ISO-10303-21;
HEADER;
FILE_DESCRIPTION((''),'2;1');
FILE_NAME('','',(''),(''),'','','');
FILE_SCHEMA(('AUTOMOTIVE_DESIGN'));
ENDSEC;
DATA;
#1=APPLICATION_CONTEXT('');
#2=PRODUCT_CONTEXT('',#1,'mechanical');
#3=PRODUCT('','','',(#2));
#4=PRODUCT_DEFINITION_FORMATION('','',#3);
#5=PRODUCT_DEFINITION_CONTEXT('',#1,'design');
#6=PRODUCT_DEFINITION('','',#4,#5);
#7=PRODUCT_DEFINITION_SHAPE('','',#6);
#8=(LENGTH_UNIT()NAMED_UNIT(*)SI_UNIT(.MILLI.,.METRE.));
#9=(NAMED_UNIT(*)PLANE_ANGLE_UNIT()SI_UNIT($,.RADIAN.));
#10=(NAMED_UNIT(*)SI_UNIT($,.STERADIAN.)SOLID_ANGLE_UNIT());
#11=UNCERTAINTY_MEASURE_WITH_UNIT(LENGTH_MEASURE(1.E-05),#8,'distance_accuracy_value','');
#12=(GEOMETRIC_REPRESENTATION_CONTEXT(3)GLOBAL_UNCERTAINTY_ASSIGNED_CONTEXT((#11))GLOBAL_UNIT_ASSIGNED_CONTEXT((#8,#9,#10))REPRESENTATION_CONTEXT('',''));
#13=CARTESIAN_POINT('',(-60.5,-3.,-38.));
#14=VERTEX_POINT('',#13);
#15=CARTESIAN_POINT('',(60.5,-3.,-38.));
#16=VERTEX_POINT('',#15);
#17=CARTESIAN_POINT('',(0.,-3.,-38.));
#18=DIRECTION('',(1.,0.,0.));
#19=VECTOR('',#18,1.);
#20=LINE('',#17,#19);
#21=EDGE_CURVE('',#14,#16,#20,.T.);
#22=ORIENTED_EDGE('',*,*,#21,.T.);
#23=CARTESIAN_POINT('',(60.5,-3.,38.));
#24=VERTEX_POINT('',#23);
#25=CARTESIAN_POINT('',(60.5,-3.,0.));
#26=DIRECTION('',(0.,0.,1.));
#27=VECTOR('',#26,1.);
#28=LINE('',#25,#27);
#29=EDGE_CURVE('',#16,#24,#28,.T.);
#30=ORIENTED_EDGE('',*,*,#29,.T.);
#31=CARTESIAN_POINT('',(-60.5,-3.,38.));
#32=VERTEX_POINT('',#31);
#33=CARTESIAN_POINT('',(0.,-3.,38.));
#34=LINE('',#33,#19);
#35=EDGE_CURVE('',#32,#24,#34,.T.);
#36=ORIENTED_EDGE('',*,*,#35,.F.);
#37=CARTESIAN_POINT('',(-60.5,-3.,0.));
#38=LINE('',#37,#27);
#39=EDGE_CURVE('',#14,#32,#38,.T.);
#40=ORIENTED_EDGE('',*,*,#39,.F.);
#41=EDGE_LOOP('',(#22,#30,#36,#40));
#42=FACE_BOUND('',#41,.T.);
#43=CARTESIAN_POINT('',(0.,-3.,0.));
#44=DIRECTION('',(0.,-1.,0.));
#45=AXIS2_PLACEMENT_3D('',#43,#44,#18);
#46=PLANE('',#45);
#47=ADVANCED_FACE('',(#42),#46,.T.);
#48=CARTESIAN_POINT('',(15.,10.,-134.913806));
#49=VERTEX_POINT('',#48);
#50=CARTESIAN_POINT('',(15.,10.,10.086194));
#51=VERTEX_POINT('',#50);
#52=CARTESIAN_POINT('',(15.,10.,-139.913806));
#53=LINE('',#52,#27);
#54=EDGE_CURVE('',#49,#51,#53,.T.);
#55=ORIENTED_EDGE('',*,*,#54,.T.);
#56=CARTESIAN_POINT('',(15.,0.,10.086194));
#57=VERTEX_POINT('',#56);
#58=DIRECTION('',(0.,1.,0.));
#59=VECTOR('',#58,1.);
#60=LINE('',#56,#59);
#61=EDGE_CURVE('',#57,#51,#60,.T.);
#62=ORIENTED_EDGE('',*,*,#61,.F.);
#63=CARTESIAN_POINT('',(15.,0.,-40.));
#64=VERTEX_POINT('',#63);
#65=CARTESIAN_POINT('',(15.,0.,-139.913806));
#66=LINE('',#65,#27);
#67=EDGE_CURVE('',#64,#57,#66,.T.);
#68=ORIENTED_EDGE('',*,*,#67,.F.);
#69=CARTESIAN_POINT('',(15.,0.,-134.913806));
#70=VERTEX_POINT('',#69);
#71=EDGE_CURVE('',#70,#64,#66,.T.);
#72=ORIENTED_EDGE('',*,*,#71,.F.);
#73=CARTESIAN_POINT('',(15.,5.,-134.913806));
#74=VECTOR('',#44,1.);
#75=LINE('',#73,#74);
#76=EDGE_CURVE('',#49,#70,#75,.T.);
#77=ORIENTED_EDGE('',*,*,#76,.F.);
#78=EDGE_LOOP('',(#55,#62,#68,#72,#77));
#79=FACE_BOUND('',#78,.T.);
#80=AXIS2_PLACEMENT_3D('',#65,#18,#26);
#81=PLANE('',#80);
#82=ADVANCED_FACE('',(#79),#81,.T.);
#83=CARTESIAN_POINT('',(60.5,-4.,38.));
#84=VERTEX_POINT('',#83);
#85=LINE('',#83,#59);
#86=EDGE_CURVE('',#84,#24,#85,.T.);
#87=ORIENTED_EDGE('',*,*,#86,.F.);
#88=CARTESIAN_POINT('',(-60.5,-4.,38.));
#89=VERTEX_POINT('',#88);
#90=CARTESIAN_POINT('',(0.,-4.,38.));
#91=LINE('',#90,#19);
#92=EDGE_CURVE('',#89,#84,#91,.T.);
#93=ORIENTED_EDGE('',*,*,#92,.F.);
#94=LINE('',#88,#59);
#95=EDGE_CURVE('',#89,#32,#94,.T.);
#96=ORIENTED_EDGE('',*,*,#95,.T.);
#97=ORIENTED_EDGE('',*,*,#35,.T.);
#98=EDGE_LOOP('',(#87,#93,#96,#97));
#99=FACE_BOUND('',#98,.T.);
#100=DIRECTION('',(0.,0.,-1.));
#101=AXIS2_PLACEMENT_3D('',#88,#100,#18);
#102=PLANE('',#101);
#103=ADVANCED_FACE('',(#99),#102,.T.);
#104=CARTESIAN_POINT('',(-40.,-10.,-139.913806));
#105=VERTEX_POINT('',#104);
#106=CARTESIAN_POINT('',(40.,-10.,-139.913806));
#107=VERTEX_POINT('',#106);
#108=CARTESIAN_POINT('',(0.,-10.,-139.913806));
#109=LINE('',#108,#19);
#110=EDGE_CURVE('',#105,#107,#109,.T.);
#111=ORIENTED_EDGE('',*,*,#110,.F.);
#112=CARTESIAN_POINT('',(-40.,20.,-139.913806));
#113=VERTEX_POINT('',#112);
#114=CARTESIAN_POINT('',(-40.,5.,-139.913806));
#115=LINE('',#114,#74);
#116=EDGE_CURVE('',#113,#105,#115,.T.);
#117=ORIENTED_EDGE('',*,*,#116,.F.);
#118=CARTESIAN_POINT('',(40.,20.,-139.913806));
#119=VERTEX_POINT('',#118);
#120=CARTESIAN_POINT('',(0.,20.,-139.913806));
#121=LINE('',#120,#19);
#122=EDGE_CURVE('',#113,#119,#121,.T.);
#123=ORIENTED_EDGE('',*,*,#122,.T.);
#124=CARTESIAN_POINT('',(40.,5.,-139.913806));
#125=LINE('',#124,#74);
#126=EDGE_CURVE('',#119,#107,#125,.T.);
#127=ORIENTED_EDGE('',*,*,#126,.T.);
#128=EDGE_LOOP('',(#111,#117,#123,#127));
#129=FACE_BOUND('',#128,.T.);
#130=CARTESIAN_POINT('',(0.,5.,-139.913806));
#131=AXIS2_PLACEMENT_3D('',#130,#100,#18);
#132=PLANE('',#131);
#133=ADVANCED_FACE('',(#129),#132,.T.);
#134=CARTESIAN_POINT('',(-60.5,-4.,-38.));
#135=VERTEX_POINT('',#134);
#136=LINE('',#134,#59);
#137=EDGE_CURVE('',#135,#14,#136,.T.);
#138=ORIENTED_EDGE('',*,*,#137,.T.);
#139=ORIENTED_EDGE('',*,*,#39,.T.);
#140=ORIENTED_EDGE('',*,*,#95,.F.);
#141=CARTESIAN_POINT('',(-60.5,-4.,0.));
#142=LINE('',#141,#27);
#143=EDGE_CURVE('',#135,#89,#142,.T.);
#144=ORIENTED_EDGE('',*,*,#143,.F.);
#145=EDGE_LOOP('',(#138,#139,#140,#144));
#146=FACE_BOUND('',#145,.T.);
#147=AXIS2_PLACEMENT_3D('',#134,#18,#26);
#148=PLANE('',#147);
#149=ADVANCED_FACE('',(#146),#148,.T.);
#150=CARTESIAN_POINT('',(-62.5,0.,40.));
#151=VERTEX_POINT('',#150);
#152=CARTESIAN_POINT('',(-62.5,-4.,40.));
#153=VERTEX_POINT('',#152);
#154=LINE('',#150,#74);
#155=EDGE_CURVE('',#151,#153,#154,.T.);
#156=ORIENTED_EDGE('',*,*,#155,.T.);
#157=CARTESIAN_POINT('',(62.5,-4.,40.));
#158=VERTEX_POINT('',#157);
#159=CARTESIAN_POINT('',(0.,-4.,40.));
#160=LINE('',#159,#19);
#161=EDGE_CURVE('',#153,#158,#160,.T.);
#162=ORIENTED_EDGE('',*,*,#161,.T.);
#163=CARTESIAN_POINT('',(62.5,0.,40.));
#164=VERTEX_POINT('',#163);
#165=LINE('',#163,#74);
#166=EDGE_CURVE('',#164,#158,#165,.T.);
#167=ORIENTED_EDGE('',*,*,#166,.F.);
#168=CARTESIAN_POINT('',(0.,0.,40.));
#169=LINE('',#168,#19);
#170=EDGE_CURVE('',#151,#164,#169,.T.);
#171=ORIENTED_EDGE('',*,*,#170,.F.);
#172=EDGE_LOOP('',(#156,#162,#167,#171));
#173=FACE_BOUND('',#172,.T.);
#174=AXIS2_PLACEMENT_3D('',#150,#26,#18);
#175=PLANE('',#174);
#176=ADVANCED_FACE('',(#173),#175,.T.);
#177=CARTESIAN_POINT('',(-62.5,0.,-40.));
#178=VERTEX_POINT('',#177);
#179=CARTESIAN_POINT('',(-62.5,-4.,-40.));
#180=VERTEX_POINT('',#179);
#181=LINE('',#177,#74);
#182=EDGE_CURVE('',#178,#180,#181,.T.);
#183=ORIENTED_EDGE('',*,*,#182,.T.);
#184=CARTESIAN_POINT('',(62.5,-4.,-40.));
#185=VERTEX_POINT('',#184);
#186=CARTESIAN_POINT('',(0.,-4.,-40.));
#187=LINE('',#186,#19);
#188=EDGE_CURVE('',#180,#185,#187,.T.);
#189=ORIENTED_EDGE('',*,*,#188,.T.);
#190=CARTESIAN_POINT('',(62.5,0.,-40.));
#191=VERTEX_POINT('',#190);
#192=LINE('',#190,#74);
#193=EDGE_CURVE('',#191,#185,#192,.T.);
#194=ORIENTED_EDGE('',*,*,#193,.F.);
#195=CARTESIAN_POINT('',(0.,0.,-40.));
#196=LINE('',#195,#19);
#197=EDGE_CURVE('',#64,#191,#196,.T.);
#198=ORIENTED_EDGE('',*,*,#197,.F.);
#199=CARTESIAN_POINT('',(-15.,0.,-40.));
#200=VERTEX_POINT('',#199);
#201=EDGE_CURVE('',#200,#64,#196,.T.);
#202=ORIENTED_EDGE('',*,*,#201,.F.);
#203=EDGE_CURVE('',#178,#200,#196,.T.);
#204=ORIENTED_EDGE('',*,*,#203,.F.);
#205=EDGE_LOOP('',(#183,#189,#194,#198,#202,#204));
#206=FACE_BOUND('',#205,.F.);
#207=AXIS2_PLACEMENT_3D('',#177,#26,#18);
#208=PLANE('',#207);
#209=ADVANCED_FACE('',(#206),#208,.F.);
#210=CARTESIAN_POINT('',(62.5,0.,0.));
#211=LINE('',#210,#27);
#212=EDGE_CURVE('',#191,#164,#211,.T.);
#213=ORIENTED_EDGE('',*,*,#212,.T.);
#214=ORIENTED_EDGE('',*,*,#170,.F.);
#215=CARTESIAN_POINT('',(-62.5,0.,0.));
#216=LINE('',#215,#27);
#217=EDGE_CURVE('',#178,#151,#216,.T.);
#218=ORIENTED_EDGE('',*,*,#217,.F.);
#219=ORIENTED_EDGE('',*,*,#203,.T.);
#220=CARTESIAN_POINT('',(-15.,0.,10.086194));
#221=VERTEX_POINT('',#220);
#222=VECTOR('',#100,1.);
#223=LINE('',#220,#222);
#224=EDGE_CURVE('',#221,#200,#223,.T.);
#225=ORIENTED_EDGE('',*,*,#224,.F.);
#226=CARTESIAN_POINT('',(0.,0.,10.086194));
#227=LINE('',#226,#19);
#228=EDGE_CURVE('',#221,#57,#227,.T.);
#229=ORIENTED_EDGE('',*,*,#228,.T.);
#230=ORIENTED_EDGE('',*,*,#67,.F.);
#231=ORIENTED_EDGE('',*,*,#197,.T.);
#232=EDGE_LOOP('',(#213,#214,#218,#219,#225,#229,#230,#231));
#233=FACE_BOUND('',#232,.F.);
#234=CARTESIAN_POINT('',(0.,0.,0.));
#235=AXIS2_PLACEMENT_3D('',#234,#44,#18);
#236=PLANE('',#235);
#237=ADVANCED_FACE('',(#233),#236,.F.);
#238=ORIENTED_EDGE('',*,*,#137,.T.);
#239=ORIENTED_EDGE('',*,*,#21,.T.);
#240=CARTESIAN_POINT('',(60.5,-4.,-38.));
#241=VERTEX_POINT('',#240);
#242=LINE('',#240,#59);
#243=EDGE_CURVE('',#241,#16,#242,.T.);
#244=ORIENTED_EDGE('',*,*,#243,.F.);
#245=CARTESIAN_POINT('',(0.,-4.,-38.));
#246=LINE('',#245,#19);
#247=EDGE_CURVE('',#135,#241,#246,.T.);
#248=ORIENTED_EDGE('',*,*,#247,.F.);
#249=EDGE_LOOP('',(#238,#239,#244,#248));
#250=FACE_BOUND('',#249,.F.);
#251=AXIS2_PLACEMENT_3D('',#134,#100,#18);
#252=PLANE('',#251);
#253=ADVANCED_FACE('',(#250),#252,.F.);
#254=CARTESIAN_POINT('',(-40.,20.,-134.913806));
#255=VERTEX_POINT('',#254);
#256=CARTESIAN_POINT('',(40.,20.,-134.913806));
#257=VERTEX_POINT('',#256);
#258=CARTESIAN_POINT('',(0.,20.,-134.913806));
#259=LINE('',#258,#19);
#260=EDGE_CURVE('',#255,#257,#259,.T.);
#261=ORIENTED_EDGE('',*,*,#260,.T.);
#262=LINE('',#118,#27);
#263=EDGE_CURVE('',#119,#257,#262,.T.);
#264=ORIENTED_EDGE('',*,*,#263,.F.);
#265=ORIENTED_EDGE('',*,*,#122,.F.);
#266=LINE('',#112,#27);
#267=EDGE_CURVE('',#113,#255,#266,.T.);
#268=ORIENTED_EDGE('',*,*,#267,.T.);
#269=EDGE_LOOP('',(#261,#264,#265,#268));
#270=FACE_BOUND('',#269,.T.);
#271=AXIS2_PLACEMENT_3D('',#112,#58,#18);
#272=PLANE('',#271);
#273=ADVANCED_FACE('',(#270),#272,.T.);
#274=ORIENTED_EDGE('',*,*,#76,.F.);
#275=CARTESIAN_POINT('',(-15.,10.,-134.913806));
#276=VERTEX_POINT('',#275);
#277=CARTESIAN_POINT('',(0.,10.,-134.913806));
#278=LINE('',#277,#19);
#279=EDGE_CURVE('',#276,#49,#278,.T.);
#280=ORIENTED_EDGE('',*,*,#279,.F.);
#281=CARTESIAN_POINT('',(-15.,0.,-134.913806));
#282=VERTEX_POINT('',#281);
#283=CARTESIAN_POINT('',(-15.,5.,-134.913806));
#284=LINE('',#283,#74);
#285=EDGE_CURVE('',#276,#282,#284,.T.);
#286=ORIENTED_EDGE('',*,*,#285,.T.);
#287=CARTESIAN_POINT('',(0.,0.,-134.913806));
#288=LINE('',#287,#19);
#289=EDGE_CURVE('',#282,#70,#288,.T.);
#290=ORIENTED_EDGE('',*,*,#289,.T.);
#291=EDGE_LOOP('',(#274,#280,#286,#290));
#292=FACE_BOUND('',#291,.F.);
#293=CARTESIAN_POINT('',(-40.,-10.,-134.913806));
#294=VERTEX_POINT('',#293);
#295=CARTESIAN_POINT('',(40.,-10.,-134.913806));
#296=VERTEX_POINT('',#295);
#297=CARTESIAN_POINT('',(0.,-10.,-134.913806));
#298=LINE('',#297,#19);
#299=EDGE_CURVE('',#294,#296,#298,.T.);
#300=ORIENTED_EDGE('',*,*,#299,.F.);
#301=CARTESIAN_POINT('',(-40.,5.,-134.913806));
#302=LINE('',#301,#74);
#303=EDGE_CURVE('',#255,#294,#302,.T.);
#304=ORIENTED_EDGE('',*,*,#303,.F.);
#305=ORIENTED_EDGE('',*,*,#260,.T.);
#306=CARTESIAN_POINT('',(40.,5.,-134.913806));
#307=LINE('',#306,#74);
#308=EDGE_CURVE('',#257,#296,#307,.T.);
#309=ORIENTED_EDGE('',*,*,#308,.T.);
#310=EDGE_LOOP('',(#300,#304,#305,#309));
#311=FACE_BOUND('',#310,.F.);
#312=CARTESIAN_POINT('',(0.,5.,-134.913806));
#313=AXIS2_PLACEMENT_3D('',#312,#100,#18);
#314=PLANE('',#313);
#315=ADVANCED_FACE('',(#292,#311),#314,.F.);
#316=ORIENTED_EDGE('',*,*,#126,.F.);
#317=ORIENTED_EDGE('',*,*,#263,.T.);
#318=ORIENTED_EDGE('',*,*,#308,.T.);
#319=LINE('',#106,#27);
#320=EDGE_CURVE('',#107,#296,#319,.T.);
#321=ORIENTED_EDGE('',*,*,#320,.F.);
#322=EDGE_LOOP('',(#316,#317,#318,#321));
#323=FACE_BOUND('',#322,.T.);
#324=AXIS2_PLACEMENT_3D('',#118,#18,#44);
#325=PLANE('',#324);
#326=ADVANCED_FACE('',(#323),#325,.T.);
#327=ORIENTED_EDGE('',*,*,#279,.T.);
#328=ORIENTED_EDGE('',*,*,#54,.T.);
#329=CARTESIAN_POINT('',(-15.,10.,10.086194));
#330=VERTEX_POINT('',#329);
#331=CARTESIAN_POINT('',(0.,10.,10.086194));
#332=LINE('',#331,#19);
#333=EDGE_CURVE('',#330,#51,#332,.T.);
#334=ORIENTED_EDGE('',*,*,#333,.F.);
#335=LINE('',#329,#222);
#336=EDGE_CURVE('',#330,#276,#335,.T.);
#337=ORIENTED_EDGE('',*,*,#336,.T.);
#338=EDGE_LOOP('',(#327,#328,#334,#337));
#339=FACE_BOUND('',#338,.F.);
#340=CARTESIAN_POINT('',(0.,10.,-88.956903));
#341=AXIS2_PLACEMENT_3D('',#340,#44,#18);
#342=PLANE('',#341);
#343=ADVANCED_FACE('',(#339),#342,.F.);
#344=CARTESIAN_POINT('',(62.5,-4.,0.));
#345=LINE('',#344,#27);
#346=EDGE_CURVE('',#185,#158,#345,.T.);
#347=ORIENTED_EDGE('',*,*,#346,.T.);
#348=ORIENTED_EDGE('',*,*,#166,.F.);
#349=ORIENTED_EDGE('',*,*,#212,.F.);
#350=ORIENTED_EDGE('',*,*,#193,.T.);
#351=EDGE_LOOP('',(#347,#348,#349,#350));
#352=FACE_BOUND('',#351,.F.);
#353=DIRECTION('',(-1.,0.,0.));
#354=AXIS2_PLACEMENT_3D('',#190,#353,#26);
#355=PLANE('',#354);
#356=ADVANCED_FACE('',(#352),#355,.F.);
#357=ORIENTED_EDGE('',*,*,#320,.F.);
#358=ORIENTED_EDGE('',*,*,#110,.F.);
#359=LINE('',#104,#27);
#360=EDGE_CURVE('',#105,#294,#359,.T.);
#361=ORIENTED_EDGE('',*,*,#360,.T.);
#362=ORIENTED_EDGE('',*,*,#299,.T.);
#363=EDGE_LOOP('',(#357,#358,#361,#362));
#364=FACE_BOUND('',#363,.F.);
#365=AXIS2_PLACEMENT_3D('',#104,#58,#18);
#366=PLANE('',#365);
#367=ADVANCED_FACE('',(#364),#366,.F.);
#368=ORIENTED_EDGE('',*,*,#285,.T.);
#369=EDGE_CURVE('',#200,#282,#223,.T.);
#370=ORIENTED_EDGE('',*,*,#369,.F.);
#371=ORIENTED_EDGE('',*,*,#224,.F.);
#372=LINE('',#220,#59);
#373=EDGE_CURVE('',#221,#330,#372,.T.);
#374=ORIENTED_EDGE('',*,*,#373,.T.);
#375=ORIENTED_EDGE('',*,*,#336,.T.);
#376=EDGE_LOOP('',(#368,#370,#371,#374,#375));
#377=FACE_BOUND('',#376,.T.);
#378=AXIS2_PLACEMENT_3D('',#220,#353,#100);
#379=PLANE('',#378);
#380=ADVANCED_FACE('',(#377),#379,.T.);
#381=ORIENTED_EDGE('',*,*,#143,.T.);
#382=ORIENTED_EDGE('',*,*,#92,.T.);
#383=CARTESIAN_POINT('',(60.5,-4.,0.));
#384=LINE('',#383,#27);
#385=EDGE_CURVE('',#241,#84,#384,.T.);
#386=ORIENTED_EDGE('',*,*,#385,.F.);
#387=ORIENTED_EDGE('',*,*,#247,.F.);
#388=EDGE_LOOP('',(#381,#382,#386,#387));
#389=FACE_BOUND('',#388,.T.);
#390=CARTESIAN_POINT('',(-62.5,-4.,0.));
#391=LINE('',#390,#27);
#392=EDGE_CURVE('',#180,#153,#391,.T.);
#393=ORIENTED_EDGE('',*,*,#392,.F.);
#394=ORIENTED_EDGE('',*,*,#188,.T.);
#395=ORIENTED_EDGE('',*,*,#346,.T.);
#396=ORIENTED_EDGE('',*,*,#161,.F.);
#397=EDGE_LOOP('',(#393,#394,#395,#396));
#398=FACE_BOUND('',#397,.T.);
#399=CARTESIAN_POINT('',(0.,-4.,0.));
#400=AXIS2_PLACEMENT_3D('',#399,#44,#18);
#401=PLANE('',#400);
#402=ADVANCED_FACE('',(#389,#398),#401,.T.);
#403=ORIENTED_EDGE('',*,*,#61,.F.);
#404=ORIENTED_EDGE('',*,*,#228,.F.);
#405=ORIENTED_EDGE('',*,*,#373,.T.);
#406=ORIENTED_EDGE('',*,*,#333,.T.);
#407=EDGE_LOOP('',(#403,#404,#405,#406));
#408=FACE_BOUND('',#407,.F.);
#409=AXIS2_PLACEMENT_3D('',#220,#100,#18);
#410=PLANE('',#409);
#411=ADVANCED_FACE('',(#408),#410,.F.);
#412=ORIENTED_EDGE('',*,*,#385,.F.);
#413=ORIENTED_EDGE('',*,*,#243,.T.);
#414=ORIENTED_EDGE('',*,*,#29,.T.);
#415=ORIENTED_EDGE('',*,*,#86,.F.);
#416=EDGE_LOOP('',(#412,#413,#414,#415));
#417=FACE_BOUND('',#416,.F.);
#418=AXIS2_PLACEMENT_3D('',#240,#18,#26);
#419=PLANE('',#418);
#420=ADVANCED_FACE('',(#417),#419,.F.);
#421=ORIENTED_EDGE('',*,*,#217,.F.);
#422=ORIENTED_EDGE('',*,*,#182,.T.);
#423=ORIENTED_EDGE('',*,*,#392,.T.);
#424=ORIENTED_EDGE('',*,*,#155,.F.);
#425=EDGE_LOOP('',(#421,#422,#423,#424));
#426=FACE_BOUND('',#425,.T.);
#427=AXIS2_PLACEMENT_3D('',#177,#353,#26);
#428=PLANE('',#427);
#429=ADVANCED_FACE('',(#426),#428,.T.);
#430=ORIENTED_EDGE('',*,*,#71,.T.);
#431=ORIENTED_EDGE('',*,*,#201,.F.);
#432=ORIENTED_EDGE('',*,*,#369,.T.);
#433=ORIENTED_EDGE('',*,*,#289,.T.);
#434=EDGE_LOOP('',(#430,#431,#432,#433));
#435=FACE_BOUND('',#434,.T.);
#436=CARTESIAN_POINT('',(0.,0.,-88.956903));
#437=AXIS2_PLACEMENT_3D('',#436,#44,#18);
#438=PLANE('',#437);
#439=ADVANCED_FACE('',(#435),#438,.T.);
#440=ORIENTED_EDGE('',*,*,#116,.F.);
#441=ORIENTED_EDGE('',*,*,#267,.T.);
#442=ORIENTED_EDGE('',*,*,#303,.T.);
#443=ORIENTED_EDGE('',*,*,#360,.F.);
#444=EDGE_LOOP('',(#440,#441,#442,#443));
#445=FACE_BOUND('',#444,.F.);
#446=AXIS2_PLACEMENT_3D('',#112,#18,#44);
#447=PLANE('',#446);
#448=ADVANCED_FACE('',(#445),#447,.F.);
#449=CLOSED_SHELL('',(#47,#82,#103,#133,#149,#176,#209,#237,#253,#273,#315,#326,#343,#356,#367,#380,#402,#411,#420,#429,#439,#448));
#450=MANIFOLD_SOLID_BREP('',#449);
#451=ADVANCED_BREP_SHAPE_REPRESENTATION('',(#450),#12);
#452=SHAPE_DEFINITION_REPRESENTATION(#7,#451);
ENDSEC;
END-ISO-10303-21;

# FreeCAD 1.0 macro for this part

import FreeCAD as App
import Part
import Sketcher
from FreeCAD import Vector
Q = App.Units.Quantity

doc = App.newDocument("Part")
body = doc.addObject("PartDesign::Body", "Body")

# Sketch on XZ plane
sketch1 = doc.addObject("Sketcher::SketchObject", "Sketch")
body.addObject(sketch1)
sketch1.AttachmentSupport = (doc.XZ_Plane, [""])
sketch1.MapMode = "FlatFace"
sketch1.addGeometry([
    Part.LineSegment(Vector(-62, 40, 0), Vector(-62, -40, 0)),
    Part.LineSegment(Vector(-62, -40, 0), Vector(62, -40, 0)),
    Part.LineSegment(Vector(62, -40, 0), Vector(62, 40, 0)),
    Part.LineSegment(Vector(62, 40, 0), Vector(-62, 40, 0)),
], False)
sketch1.addConstraint([
    Sketcher.Constraint("Coincident", 0, 2, 1, 1),
    Sketcher.Constraint("Coincident", 1, 2, 2, 1),
    Sketcher.Constraint("Coincident", 2, 2, 3, 1),
    Sketcher.Constraint("Coincident", 3, 2, 0, 1),
    Sketcher.Constraint("Vertical", 0),
    Sketcher.Constraint("Horizontal", 1),
    Sketcher.Constraint("Vertical", 2),
    Sketcher.Constraint("Horizontal", 3),
    Sketcher.Constraint("Symmetric", 0, 2, 2, 2, -1, 1),
    Sketcher.Constraint("DistanceX", 1, 1, 1, 2, Q("125 mm")),
    Sketcher.Constraint("DistanceY", 0, 2, 0, 1, Q("80 mm")),
])
pad1 = doc.addObject("PartDesign::Pad", "Pad")
body.addObject(pad1)
pad1.Profile = sketch1
pad1.Length = 4

# Sketch on XZ plane
sketch2 = doc.addObject("Sketcher::SketchObject", "Sketch001")
body.addObject(sketch2)
sketch2.AttachmentSupport = (doc.XZ_Plane, [""])
sketch2.MapMode = "FlatFace"
sketch2.AttachmentOffset = App.Placement(Vector(0, 0, 4), App.Rotation())
sketch2.addGeometry([
    Part.LineSegment(Vector(-60, 38, 0), Vector(-60, -38, 0)),
    Part.LineSegment(Vector(-60, -38, 0), Vector(60, -38, 0)),
    Part.LineSegment(Vector(60, -38, 0), Vector(60, 38, 0)),
    Part.LineSegment(Vector(60, 38, 0), Vector(-60, 38, 0)),
], False)
sketch2.addConstraint([
    Sketcher.Constraint("Coincident", 0, 2, 1, 1),
    Sketcher.Constraint("Coincident", 1, 2, 2, 1),
    Sketcher.Constraint("Coincident", 2, 2, 3, 1),
    Sketcher.Constraint("Coincident", 3, 2, 0, 1),
    Sketcher.Constraint("Vertical", 0),
    Sketcher.Constraint("Horizontal", 1),
    Sketcher.Constraint("Vertical", 2),
    Sketcher.Constraint("Horizontal", 3),
    Sketcher.Constraint("Symmetric", 0, 2, 2, 2, -1, 1),
    Sketcher.Constraint("DistanceX", 1, 1, 1, 2, Q("121 mm")),
    Sketcher.Constraint("DistanceY", 0, 2, 0, 1, Q("76 mm")),
])
pocket1 = doc.addObject("PartDesign::Pocket", "Pocket")
body.addObject(pocket1)
pocket1.Profile = sketch2
pocket1.Length = 1

# Sketch on XZ plane
sketch3 = doc.addObject("Sketcher::SketchObject", "Sketch002")
body.addObject(sketch3)
sketch3.AttachmentSupport = (doc.XZ_Plane, [""])
sketch3.MapMode = "FlatFace"
sketch3.addGeometry([
    Part.LineSegment(Vector(-15, -140, 0), Vector(15, -140, 0)),
    Part.LineSegment(Vector(15, -140, 0), Vector(15, 10, 0)),
    Part.LineSegment(Vector(15, 10, 0), Vector(-15, 10, 0)),
    Part.LineSegment(Vector(-15, 10, 0), Vector(-15, -140, 0)),
], False)
sketch3.addConstraint([
    Sketcher.Constraint("Coincident", 0, 2, 1, 1),
    Sketcher.Constraint("Coincident", 1, 2, 2, 1),
    Sketcher.Constraint("Coincident", 2, 2, 3, 1),
    Sketcher.Constraint("Coincident", 3, 2, 0, 1),
    Sketcher.Constraint("Horizontal", 0),
    Sketcher.Constraint("Vertical", 1),
    Sketcher.Constraint("Horizontal", 2),
    Sketcher.Constraint("Vertical", 3),
    Sketcher.Constraint("DistanceX", 0, 1, 0, 2, Q("30 mm")),
    Sketcher.Constraint("DistanceY", 1, 1, 1, 2, Q("150 mm")),
    Sketcher.Constraint("DistanceX", -1, 1, 0, 2, Q("15 mm")),
    Sketcher.Constraint("DistanceY", 0, 2, -1, 1, Q("139.913806 mm")),
])
pad2 = doc.addObject("PartDesign::Pad", "Pad001")
body.addObject(pad2)
pad2.Profile = sketch3
pad2.Length = 10
pad2.Reversed = True

# Sketch on XY plane
sketch4 = doc.addObject("Sketcher::SketchObject", "Sketch003")
body.addObject(sketch4)
sketch4.AttachmentSupport = (doc.XY_Plane, [""])
sketch4.MapMode = "FlatFace"
sketch4.AttachmentOffset = App.Placement(Vector(0, 0, -139.913806), App.Rotation())
sketch4.addGeometry([
    Part.LineSegment(Vector(-40, -10, 0), Vector(-40, 20, 0)),  # 0
    Part.LineSegment(Vector(-40, 20, 0), Vector(40, 20, 0)),  # 1
    Part.LineSegment(Vector(40, 20, 0), Vector(40, -10, 0)),  # 2
    Part.LineSegment(Vector(40, -10, 0), Vector(-40, -10, 0)),  # 3
    Part.LineSegment(Vector(15, 10, 0), Vector(-15, 10, 0)),  # 4
    Part.LineSegment(Vector(-15, 10, 0), Vector(-15, 0, 0)),  # 5
    Part.LineSegment(Vector(-15, 0, 0), Vector(15, 0, 0)),  # 6
    Part.LineSegment(Vector(15, 0, 0), Vector(15, 10, 0)),  # 7
], False)
sketch4.addConstraint([
    Sketcher.Constraint("Coincident", 0, 2, 1, 1),
    Sketcher.Constraint("Coincident", 1, 2, 2, 1),
    Sketcher.Constraint("Coincident", 2, 2, 3, 1),
    Sketcher.Constraint("Coincident", 3, 2, 0, 1),
    Sketcher.Constraint("Coincident", 4, 2, 5, 1),
    Sketcher.Constraint("Coincident", 5, 2, 6, 1),
    Sketcher.Constraint("Coincident", 6, 2, 7, 1),
    Sketcher.Constraint("Coincident", 7, 2, 4, 1),
    Sketcher.Constraint("Vertical", 0),
    Sketcher.Constraint("Horizontal", 1),
    Sketcher.Constraint("Vertical", 2),
    Sketcher.Constraint("Horizontal", 3),
    Sketcher.Constraint("Horizontal", 4),
    Sketcher.Constraint("Vertical", 5),
    Sketcher.Constraint("Horizontal", 6),
    Sketcher.Constraint("Vertical", 7),
    Sketcher.Constraint("Symmetric", 5, 2, 6, 2, -1, 1),
    Sketcher.Constraint("Equal", 6, 0),
    Sketcher.Constraint("DistanceX", 1, 1, 1, 2, Q("80 mm")),
    Sketcher.Constraint("DistanceX", 4, 2, 4, 1, Q("30 mm")),
    Sketcher.Constraint("DistanceY", 5, 2, 5, 1, Q("10 mm")),
    Sketcher.Constraint("DistanceX", 0, 2, -1, 1, Q("40 mm")),
    Sketcher.Constraint("DistanceY", -1, 1, 0, 2, Q("20 mm")),
])
pad3 = doc.addObject("PartDesign::Pad", "Pad002")
body.addObject(pad3)
pad3.Profile = sketch4
pad3.Length = 5

doc.recompute()
